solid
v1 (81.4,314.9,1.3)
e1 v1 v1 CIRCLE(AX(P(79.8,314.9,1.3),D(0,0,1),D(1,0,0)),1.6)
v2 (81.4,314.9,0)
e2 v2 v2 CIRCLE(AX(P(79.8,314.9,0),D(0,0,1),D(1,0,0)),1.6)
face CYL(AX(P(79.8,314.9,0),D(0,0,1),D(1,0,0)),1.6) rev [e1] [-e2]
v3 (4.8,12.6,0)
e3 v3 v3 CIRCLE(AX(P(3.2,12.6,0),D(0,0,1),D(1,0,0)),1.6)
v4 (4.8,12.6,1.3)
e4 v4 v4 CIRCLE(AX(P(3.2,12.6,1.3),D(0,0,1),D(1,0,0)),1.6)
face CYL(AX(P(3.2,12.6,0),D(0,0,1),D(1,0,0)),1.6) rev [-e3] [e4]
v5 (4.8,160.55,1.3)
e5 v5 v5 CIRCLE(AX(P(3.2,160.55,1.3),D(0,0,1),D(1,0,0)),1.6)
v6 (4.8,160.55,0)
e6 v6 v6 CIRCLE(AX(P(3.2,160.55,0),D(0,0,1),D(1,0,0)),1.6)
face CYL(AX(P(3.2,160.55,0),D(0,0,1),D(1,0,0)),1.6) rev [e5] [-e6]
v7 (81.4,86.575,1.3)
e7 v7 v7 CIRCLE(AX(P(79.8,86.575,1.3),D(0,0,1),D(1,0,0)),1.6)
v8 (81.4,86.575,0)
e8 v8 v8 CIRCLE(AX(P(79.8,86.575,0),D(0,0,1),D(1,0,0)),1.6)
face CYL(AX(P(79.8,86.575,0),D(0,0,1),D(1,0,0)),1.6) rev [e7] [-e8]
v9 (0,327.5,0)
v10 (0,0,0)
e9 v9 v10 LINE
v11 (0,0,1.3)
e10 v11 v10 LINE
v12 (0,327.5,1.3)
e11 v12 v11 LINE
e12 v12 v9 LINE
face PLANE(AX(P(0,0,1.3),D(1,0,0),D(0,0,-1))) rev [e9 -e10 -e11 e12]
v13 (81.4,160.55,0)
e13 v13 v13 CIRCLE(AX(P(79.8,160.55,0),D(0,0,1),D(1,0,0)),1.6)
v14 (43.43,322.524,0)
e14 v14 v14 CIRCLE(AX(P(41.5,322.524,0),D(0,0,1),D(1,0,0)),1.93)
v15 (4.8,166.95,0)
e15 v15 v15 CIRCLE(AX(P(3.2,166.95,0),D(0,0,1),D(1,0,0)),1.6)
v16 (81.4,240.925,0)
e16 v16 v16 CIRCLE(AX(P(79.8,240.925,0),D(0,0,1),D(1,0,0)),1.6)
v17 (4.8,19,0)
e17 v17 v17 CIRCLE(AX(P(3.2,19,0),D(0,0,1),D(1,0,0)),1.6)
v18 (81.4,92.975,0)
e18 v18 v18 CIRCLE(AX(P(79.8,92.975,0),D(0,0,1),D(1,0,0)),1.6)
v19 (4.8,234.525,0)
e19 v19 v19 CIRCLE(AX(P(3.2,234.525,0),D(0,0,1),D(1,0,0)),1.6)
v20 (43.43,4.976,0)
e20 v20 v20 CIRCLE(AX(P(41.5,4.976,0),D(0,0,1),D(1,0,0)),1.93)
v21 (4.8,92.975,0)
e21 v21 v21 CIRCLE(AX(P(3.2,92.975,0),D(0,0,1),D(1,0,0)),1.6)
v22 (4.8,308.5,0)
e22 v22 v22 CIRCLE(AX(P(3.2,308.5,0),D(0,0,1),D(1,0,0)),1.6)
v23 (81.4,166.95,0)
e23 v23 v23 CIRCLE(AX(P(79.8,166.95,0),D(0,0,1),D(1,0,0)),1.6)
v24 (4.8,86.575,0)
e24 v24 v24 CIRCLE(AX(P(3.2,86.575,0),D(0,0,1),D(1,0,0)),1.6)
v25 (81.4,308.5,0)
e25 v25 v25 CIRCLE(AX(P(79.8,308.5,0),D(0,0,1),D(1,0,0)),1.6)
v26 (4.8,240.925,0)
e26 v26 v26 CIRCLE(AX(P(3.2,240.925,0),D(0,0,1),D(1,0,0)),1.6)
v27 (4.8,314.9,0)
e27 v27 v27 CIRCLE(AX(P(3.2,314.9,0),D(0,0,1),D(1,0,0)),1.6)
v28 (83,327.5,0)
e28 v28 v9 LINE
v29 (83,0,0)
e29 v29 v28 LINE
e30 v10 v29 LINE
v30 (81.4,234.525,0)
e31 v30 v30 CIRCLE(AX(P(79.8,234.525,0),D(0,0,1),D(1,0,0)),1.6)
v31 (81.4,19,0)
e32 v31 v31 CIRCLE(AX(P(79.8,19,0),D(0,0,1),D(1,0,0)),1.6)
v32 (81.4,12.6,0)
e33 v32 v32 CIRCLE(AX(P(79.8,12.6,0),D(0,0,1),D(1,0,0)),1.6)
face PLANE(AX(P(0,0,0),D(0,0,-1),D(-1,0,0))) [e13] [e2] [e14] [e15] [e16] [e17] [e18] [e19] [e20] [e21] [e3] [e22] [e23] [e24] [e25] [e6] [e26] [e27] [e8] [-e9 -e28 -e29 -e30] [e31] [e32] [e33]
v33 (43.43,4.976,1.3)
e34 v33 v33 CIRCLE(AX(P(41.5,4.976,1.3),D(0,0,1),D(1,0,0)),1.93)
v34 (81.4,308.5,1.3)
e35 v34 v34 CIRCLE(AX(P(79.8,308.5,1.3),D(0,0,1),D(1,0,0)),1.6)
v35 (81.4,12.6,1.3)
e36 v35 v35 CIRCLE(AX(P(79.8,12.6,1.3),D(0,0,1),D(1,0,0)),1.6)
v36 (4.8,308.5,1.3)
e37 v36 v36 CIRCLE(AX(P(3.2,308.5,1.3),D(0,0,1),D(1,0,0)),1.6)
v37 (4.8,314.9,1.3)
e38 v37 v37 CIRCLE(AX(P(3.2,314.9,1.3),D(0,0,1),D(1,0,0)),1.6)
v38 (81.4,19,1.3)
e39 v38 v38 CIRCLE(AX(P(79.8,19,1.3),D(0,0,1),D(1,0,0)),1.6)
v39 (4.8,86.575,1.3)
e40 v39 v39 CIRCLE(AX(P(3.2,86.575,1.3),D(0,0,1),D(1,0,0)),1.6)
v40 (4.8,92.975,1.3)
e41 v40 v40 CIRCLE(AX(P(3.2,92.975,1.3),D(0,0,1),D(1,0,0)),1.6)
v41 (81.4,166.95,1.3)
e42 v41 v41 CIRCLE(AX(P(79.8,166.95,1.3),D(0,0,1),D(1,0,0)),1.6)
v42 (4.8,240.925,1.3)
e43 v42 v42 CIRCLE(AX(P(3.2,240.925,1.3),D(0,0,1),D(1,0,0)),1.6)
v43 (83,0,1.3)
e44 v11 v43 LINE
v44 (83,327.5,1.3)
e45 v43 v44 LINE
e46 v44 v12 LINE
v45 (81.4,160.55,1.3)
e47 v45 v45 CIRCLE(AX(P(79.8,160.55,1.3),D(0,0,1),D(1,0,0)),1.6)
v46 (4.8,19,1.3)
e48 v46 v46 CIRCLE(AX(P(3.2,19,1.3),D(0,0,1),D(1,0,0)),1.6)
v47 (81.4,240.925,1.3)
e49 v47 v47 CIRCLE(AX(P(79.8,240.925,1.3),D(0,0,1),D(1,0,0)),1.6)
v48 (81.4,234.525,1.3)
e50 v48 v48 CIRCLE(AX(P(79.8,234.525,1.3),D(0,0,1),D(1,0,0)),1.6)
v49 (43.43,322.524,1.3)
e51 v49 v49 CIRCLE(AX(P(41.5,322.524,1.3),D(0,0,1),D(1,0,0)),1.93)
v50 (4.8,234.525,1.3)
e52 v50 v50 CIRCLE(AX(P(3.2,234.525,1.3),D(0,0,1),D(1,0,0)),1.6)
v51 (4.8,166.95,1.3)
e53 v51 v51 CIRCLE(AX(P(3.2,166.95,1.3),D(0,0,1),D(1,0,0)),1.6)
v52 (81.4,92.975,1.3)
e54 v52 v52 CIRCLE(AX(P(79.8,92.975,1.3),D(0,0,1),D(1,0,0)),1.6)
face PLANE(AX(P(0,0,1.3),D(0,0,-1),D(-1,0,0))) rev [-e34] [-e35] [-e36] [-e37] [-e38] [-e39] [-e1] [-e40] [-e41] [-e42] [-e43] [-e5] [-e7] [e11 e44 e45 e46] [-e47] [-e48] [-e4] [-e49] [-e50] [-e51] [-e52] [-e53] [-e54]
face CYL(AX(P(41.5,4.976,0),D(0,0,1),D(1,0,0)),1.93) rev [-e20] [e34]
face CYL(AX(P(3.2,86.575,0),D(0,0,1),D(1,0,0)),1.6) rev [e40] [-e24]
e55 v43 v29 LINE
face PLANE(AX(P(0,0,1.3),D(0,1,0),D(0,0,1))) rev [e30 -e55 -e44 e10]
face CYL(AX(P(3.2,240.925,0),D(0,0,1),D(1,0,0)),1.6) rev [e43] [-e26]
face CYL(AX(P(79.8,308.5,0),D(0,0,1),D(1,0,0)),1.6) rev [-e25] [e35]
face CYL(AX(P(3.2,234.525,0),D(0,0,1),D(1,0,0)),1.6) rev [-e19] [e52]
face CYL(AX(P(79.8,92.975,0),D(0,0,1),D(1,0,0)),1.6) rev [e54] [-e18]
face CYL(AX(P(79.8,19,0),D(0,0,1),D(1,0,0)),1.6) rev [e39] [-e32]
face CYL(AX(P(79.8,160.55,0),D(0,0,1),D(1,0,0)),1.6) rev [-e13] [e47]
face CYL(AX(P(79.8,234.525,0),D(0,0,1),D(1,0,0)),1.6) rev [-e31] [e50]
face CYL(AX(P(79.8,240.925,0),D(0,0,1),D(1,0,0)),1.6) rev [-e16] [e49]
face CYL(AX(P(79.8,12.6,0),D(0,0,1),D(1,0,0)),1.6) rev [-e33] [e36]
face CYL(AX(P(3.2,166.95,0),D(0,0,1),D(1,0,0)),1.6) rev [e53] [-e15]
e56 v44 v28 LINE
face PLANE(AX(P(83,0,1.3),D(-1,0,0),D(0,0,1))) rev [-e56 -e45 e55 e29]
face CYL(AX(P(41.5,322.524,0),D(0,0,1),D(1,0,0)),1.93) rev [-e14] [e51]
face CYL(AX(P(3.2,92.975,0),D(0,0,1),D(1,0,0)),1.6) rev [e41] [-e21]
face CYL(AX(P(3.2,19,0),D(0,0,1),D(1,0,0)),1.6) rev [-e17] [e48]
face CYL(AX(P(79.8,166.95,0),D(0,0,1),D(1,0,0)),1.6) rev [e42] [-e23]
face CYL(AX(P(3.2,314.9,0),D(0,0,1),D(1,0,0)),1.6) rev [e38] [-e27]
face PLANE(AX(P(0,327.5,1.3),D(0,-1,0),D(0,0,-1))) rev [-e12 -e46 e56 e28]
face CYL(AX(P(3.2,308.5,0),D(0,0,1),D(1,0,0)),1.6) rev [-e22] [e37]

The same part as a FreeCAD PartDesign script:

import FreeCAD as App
import Part
import Sketcher


def add_polygon(sketch, points):
    """Adds a closed chain of lines whose ends are joined by coincident constraints."""
    first, n = sketch.GeometryCount, len(points)
    for a, b in zip(points, points[1:] + points[:1]):
        sketch.addGeometry(Part.LineSegment(App.Vector(*a, 0), App.Vector(*b, 0)), False)
    for i in range(n):
        sketch.addConstraint(Sketcher.Constraint("Coincident", first + i, 2, first + (i + 1) % n, 1))

doc = App.newDocument("Part")
body = doc.addObject("PartDesign::Body", "Body")

sketch1 = body.newObject("Sketcher::SketchObject", "Sketch")
sketch1.AttachmentSupport = (doc.getObject("XY_Plane"), [""])
sketch1.MapMode = "FlatFace"
add_polygon(sketch1, [(0, 328), (0, 0), (83, 0), (83, 328)])
sketch1.addConstraint([
    Sketcher.Constraint("Vertical", 0),
    Sketcher.Constraint("Horizontal", 1),
    Sketcher.Constraint("Vertical", 2),
    Sketcher.Constraint("Horizontal", 3),
    Sketcher.Constraint("Coincident", 0, 2, -1, 1),
    Sketcher.Constraint("DistanceX", 1, 1, 1, 2, 83.0),
    Sketcher.Constraint("DistanceY", 0, 2, 0, 1, 327.5),
])
pad1 = body.newObject("PartDesign::Pad", "Pad")
pad1.Profile = sketch1
pad1.Length = 1.3

sketch2 = body.newObject("Sketcher::SketchObject", "Sketch001")
sketch2.AttachmentSupport = (doc.getObject("XY_Plane"), [""])
sketch2.MapMode = "FlatFace"
sketch2.AttachmentOffset = App.Placement(App.Vector(0, 0, 1.3), App.Rotation())
sketch2.addGeometry([
    Part.Circle(App.Vector(3.2, 314.9, 0), App.Vector(0, 0, 1), 1.6),
    Part.Circle(App.Vector(3.2, 308.5, 0), App.Vector(0, 0, 1), 1.6),
    Part.Circle(App.Vector(79.8, 314.9, 0), App.Vector(0, 0, 1), 1.6),
    Part.Circle(App.Vector(79.8, 308.5, 0), App.Vector(0, 0, 1), 1.6),
    Part.Circle(App.Vector(3.2, 240.9, 0), App.Vector(0, 0, 1), 1.6),
    Part.Circle(App.Vector(3.2, 234.5, 0), App.Vector(0, 0, 1), 1.6),
    Part.Circle(App.Vector(79.8, 240.9, 0), App.Vector(0, 0, 1), 1.6),
    Part.Circle(App.Vector(79.8, 234.5, 0), App.Vector(0, 0, 1), 1.6),
    Part.Circle(App.Vector(3.2, 166.9, 0), App.Vector(0, 0, 1), 1.6),
    Part.Circle(App.Vector(3.2, 160.6, 0), App.Vector(0, 0, 1), 1.6),
    Part.Circle(App.Vector(79.8, 166.9, 0), App.Vector(0, 0, 1), 1.6),
    Part.Circle(App.Vector(79.8, 160.6, 0), App.Vector(0, 0, 1), 1.6),
    Part.Circle(App.Vector(3.2, 93, 0), App.Vector(0, 0, 1), 1.6),
    Part.Circle(App.Vector(3.2, 86.6, 0), App.Vector(0, 0, 1), 1.6),
    Part.Circle(App.Vector(79.8, 93, 0), App.Vector(0, 0, 1), 1.6),
    Part.Circle(App.Vector(79.8, 86.6, 0), App.Vector(0, 0, 1), 1.6),
    Part.Circle(App.Vector(3.2, 19, 0), App.Vector(0, 0, 1), 1.6),
    Part.Circle(App.Vector(3.2, 12.6, 0), App.Vector(0, 0, 1), 1.6),
    Part.Circle(App.Vector(79.8, 19, 0), App.Vector(0, 0, 1), 1.6),
    Part.Circle(App.Vector(79.8, 12.6, 0), App.Vector(0, 0, 1), 1.6),
], False)
sketch2.addConstraint([
    Sketcher.Constraint("Equal", 0, 1),
    Sketcher.Constraint("Equal", 1, 2),
    Sketcher.Constraint("Equal", 2, 3),
    Sketcher.Constraint("Equal", 3, 4),
    Sketcher.Constraint("Equal", 4, 5),
    Sketcher.Constraint("Equal", 5, 6),
    Sketcher.Constraint("Equal", 6, 7),
    Sketcher.Constraint("Equal", 7, 8),
    Sketcher.Constraint("Equal", 8, 9),
    Sketcher.Constraint("Equal", 9, 10),
    Sketcher.Constraint("Equal", 10, 11),
    Sketcher.Constraint("Equal", 11, 12),
    Sketcher.Constraint("Equal", 12, 13),
    Sketcher.Constraint("Equal", 13, 14),
    Sketcher.Constraint("Equal", 14, 15),
    Sketcher.Constraint("Equal", 15, 16),
    Sketcher.Constraint("Equal", 16, 17),
    Sketcher.Constraint("Equal", 17, 18),
    Sketcher.Constraint("Equal", 18, 19),
    Sketcher.Constraint("Horizontal", 0, 3, 2, 3),
    Sketcher.Constraint("Horizontal", 1, 3, 3, 3),
    Sketcher.Constraint("Horizontal", 4, 3, 6, 3),
    Sketcher.Constraint("Horizontal", 5, 3, 7, 3),
    Sketcher.Constraint("Horizontal", 8, 3, 10, 3),
    Sketcher.Constraint("Horizontal", 9, 3, 11, 3),
    Sketcher.Constraint("Horizontal", 12, 3, 14, 3),
    Sketcher.Constraint("Horizontal", 13, 3, 15, 3),
    Sketcher.Constraint("Horizontal", 16, 3, 18, 3),
    Sketcher.Constraint("Horizontal", 17, 3, 19, 3),
    Sketcher.Constraint("Vertical", 0, 3, 1, 3),
    Sketcher.Constraint("Vertical", 2, 3, 3, 3),
    Sketcher.Constraint("Vertical", 1, 3, 4, 3),
    Sketcher.Constraint("Vertical", 4, 3, 5, 3),
    Sketcher.Constraint("Vertical", 3, 3, 6, 3),
    Sketcher.Constraint("Vertical", 6, 3, 7, 3),
    Sketcher.Constraint("Vertical", 5, 3, 8, 3),
    Sketcher.Constraint("Vertical", 8, 3, 9, 3),
    Sketcher.Constraint("Vertical", 7, 3, 10, 3),
    Sketcher.Constraint("Vertical", 10, 3, 11, 3),
    Sketcher.Constraint("Vertical", 9, 3, 12, 3),
    Sketcher.Constraint("Vertical", 12, 3, 13, 3),
    Sketcher.Constraint("Vertical", 11, 3, 14, 3),
    Sketcher.Constraint("Vertical", 14, 3, 15, 3),
    Sketcher.Constraint("Vertical", 13, 3, 16, 3),
    Sketcher.Constraint("Vertical", 16, 3, 17, 3),
    Sketcher.Constraint("Vertical", 15, 3, 18, 3),
    Sketcher.Constraint("Vertical", 18, 3, 19, 3),
    Sketcher.Constraint("Diameter", 0, 3.2),
    Sketcher.Constraint("DistanceY", -1, 1, 16, 3, 19.0),
    Sketcher.Constraint("DistanceX", -1, 1, 0, 3, 3.2),
    Sketcher.Constraint("DistanceY", -1, 1, 0, 3, 314.9),
    Sketcher.Constraint("DistanceY", -1, 1, 1, 3, 308.5),
    Sketcher.Constraint("DistanceX", -1, 1, 2, 3, 79.8),
    Sketcher.Constraint("DistanceY", -1, 1, 17, 3, 12.6),
    Sketcher.Constraint("DistanceY", 5, 3, 4, 3, 6.4),
    Sketcher.Constraint("DistanceY", 9, 3, 8, 3, 6.4),
    Sketcher.Constraint("DistanceY", 13, 3, 12, 3, 6.4),
    Sketcher.Constraint("DistanceY", -1, 1, 8, 3, 166.95),
    Sketcher.Constraint("DistanceY", 12, 3, 5, 3, 141.55),
    Sketcher.Constraint("DistanceY", -1, 1, 4, 3, 240.925),
])
pocket1 = body.newObject("PartDesign::Pocket", "Pocket")
pocket1.Profile = sketch2
pocket1.Length = 1.3

sketch3 = body.newObject("Sketcher::SketchObject", "Sketch002")
sketch3.AttachmentSupport = (doc.getObject("XY_Plane"), [""])
sketch3.MapMode = "FlatFace"
sketch3.AttachmentOffset = App.Placement(App.Vector(0, 0, 1.3), App.Rotation())
sketch3.addGeometry([
    Part.Circle(App.Vector(41.5, 322.5, 0), App.Vector(0, 0, 1), 1.9),
    Part.Circle(App.Vector(41.5, 5, 0), App.Vector(0, 0, 1), 1.9),
], False)
sketch3.addConstraint([
    Sketcher.Constraint("Equal", 0, 1),
    Sketcher.Constraint("Vertical", 0, 3, 1, 3),
    Sketcher.Constraint("Diameter", 0, 3.86),
    Sketcher.Constraint("DistanceX", -1, 1, 0, 3, 41.5),
    Sketcher.Constraint("DistanceY", -1, 1, 0, 3, 322.524),
    Sketcher.Constraint("DistanceY", -1, 1, 1, 3, 4.976),
])
pocket2 = body.newObject("PartDesign::Pocket", "Pocket001")
pocket2.Profile = sketch3
pocket2.Length = 1.3

doc.recompute()
